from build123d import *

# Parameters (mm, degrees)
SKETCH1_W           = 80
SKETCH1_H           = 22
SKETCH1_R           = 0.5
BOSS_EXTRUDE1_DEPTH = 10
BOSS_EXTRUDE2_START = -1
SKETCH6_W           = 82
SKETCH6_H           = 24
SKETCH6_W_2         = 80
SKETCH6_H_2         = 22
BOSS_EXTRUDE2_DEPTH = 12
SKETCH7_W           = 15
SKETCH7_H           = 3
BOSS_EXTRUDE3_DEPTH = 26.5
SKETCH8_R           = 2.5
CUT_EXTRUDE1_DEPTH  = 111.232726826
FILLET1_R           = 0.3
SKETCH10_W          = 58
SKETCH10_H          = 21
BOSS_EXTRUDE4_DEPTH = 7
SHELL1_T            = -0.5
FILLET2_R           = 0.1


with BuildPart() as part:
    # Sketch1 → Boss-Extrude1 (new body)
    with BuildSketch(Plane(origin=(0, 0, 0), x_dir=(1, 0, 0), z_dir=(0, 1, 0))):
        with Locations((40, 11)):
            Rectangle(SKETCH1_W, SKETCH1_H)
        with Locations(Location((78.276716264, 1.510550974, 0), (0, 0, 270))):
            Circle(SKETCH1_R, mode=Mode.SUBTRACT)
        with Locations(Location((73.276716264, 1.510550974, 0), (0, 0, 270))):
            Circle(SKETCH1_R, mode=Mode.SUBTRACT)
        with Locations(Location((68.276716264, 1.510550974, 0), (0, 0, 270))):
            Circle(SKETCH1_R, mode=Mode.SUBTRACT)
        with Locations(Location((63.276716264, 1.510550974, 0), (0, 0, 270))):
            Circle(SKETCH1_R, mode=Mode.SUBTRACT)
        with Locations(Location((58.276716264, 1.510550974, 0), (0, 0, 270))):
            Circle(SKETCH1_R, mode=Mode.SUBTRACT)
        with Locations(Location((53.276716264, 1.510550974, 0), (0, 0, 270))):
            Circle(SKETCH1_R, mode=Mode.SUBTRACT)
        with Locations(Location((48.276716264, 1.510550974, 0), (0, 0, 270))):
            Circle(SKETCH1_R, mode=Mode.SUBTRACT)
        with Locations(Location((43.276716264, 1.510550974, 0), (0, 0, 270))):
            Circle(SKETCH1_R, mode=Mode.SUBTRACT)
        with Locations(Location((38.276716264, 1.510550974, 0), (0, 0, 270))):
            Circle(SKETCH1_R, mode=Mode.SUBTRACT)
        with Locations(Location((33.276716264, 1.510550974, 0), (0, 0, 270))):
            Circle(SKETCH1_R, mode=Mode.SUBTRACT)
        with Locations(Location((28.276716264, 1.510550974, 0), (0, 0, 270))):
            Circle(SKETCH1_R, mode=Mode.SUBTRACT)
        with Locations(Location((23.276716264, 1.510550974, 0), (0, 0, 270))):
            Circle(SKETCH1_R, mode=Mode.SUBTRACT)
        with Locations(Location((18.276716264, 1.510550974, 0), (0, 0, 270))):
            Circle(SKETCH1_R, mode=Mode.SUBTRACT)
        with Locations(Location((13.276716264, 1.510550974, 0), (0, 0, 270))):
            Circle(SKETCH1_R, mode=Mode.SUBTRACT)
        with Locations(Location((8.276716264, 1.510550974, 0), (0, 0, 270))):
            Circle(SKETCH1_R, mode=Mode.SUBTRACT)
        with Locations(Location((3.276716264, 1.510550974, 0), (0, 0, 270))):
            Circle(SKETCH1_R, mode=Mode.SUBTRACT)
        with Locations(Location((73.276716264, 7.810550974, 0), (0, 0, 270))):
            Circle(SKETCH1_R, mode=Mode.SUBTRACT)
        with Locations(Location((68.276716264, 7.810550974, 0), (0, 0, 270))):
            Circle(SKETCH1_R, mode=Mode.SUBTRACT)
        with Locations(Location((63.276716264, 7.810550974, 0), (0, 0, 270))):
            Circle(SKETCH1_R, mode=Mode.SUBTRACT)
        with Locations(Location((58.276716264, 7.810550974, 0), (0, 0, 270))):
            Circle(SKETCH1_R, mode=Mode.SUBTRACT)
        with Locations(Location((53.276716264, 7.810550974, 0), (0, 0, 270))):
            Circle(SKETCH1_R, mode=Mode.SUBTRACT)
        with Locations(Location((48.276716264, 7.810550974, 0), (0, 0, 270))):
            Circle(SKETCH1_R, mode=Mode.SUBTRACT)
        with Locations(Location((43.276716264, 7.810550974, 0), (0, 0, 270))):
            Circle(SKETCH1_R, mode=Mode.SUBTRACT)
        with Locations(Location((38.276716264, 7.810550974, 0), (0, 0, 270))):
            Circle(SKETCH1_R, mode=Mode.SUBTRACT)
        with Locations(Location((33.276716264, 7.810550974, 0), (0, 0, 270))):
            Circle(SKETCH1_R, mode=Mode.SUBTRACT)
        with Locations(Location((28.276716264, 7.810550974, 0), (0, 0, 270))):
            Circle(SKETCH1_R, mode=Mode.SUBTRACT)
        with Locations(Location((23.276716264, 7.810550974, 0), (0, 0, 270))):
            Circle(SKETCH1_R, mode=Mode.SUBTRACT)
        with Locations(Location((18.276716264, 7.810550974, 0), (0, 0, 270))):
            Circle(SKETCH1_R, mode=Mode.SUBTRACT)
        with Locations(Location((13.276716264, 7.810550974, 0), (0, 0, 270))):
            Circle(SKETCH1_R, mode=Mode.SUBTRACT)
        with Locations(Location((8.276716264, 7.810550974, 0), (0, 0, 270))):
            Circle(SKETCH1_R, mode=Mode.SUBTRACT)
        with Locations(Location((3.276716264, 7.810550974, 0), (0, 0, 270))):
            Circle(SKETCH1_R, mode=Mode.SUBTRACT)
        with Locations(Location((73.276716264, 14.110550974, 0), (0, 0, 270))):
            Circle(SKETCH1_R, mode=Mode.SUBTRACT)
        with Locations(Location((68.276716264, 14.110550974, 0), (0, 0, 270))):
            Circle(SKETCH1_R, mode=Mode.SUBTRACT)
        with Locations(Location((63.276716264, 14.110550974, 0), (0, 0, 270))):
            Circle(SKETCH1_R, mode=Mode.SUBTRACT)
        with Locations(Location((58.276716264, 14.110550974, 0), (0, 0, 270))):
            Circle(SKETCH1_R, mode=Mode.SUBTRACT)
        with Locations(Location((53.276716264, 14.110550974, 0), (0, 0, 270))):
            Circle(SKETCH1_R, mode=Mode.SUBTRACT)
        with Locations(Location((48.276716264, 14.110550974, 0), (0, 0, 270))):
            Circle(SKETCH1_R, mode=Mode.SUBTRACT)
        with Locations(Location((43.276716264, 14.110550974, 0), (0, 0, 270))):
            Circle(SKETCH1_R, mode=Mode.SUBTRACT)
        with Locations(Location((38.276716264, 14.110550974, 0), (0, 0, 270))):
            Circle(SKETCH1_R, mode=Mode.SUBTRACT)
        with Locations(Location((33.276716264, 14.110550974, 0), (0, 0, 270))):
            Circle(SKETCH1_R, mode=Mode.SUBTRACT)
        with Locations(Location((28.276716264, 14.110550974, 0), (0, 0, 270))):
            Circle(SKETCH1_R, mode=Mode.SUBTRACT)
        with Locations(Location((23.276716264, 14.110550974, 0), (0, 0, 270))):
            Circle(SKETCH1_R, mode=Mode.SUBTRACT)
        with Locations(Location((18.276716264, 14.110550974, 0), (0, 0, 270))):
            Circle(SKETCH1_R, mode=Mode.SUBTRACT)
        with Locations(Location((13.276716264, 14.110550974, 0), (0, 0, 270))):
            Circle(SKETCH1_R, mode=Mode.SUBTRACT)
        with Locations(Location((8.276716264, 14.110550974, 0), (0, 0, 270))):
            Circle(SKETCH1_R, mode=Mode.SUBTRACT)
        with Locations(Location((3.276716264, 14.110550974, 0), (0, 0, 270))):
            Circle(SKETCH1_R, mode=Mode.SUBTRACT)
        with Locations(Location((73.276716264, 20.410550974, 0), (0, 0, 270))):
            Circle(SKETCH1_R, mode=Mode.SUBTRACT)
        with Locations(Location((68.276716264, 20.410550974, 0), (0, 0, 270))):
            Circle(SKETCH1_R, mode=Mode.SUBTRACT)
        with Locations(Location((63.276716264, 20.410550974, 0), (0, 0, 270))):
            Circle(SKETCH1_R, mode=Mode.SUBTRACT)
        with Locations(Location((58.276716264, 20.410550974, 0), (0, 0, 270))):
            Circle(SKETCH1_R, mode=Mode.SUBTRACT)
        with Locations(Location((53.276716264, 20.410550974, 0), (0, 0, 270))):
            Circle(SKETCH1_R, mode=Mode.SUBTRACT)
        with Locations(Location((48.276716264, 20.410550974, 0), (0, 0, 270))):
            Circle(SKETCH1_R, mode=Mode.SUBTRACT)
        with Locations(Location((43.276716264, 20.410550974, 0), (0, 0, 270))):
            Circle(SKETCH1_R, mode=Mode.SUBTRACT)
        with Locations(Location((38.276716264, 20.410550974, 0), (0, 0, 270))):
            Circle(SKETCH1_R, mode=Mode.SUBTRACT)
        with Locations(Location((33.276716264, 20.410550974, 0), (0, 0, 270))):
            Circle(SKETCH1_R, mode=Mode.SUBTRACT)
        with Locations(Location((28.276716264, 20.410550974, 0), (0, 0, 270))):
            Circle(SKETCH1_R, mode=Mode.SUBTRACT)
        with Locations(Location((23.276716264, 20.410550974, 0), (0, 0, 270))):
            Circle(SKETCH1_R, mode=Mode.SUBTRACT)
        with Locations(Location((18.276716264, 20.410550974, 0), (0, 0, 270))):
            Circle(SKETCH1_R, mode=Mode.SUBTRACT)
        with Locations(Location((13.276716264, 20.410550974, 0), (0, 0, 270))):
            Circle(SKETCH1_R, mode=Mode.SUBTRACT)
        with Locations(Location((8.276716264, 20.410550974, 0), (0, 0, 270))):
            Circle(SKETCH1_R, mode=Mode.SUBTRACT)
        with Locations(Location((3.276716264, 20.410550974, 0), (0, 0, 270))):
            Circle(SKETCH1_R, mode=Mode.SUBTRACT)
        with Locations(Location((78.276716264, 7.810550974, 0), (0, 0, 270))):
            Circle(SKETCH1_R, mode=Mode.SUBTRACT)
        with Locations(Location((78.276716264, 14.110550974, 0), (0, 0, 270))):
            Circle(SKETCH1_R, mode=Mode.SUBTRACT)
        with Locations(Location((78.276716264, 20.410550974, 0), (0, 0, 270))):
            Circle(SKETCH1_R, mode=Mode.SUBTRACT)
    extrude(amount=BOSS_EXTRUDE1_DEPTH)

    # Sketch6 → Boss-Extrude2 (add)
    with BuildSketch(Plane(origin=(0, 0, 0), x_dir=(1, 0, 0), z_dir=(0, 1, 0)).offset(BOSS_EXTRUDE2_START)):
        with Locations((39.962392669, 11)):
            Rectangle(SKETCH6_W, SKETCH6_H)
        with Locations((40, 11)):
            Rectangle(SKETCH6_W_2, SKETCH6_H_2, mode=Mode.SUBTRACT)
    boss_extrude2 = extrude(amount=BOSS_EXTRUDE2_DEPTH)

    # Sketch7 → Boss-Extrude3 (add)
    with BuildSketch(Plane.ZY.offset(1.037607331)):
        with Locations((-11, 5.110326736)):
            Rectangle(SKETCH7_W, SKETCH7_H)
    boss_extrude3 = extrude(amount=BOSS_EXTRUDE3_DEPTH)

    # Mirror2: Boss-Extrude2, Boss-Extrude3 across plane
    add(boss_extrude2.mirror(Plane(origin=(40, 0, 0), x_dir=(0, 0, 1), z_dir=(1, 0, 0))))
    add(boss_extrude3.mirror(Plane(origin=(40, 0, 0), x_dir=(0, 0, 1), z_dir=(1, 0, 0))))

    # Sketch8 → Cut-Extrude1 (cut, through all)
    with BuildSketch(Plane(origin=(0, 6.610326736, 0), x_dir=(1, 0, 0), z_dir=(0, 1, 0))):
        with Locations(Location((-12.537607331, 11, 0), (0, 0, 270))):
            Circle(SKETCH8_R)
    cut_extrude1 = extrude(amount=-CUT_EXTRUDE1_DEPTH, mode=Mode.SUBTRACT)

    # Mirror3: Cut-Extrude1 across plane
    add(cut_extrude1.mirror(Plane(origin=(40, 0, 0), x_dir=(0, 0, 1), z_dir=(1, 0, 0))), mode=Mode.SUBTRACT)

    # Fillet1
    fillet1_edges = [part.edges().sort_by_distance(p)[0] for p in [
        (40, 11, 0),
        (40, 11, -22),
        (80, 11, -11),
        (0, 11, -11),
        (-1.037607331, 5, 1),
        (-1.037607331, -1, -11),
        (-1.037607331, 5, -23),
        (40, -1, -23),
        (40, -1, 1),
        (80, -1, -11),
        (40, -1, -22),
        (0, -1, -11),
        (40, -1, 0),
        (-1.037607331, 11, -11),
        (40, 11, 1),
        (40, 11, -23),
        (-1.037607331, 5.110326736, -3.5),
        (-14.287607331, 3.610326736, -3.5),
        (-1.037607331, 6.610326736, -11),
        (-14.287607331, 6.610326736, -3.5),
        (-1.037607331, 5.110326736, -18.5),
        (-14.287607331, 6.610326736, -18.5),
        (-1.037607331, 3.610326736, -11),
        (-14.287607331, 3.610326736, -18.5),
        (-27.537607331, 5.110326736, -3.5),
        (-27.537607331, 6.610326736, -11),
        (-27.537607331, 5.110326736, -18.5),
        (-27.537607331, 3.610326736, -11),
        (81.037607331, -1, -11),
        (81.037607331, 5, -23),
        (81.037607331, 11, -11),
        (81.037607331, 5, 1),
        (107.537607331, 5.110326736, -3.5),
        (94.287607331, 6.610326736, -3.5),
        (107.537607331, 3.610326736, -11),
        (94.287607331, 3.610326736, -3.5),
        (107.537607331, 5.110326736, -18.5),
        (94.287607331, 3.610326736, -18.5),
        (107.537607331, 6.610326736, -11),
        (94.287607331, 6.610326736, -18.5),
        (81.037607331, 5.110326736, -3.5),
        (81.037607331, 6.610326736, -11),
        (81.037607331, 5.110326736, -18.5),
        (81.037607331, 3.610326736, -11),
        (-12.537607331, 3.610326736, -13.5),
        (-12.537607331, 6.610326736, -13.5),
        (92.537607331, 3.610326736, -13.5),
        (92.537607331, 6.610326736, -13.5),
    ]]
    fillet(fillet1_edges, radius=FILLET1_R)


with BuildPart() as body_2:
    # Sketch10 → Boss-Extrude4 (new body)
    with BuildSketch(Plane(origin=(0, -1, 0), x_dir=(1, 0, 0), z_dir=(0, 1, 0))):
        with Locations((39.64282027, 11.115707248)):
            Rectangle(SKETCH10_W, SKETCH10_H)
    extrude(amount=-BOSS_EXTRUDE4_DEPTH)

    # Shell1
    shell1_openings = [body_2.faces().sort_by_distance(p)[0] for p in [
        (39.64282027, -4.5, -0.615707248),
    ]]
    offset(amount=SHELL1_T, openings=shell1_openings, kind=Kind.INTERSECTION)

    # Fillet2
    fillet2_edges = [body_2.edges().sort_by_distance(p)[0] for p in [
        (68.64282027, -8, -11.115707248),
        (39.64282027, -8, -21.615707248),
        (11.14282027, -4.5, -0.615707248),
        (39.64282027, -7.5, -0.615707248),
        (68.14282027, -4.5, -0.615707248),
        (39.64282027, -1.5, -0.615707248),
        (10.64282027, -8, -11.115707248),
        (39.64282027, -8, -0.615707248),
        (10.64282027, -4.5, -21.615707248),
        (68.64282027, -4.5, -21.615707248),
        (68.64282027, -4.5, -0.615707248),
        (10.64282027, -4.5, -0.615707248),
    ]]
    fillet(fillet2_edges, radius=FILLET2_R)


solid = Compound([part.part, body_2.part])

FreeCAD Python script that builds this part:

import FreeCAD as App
import Part
import Sketcher

V = App.Vector
Q = App.Units.Quantity


def edges_at(feature, points):
    """Names of the edges that pass closest to the given points."""
    edges = feature.Shape.Edges
    near = lambda p: min(range(len(edges)), key=lambda i: edges[i].distToShape(Part.Vertex(*p))[0])
    return sorted({f"Edge{near(p) + 1}" for p in points})


def faces_at(feature, points):
    """Names of the faces that lie closest to the given points."""
    faces = feature.Shape.Faces
    near = lambda p: min(range(len(faces)), key=lambda i: faces[i].distToShape(Part.Vertex(*p))[0])
    return sorted({f"Face{near(p) + 1}" for p in points})


def add_polygon(sketch, points):
    """Adds a closed chain of lines whose ends are joined by coincident constraints."""
    first, n = sketch.GeometryCount, len(points)
    for a, b in zip(points, points[1:] + points[:1]):
        sketch.addGeometry(Part.LineSegment(App.Vector(*a, 0), App.Vector(*b, 0)), False)
    for i in range(n):
        sketch.addConstraint(Sketcher.Constraint("Coincident", first + i, 2, first + (i + 1) % n, 1))

doc = App.newDocument("Part")
body = doc.addObject("PartDesign::Body", "Body")

sketch1 = body.newObject("Sketcher::SketchObject", "Sketch")
sketch1.AttachmentSupport = (doc.getObject("XZ_Plane"), [""])
sketch1.MapMode = "FlatFace"
add_polygon(sketch1, [(0, -22), (0, 0), (80, 0), (80, -22)])
sketch1.addGeometry(Part.Circle(V(3.3, -1.5, 0), V(0, 0, 1), 0.5), False)
sketch1.addGeometry(Part.Circle(V(8.3, -1.5, 0), V(0, 0, 1), 0.5), False)
sketch1.addGeometry(Part.Circle(V(13.3, -1.5, 0), V(0, 0, 1), 0.5), False)
sketch1.addGeometry(Part.Circle(V(18.3, -1.5, 0), V(0, 0, 1), 0.5), False)
sketch1.addGeometry(Part.Circle(V(23.3, -1.5, 0), V(0, 0, 1), 0.5), False)
sketch1.addGeometry(Part.Circle(V(28.3, -1.5, 0), V(0, 0, 1), 0.5), False)
sketch1.addGeometry(Part.Circle(V(33.3, -1.5, 0), V(0, 0, 1), 0.5), False)
sketch1.addGeometry(Part.Circle(V(38.3, -1.5, 0), V(0, 0, 1), 0.5), False)
sketch1.addGeometry(Part.Circle(V(3.3, -7.8, 0), V(0, 0, 1), 0.5), False)
sketch1.addGeometry(Part.Circle(V(8.3, -7.8, 0), V(0, 0, 1), 0.5), False)
sketch1.addGeometry(Part.Circle(V(13.3, -7.8, 0), V(0, 0, 1), 0.5), False)
sketch1.addGeometry(Part.Circle(V(18.3, -7.8, 0), V(0, 0, 1), 0.5), False)
sketch1.addGeometry(Part.Circle(V(23.3, -7.8, 0), V(0, 0, 1), 0.5), False)
sketch1.addGeometry(Part.Circle(V(28.3, -7.8, 0), V(0, 0, 1), 0.5), False)
sketch1.addGeometry(Part.Circle(V(33.3, -7.8, 0), V(0, 0, 1), 0.5), False)
sketch1.addGeometry(Part.Circle(V(38.3, -7.8, 0), V(0, 0, 1), 0.5), False)
sketch1.addGeometry(Part.Circle(V(43.3, -1.5, 0), V(0, 0, 1), 0.5), False)
sketch1.addGeometry(Part.Circle(V(48.3, -1.5, 0), V(0, 0, 1), 0.5), False)
sketch1.addGeometry(Part.Circle(V(53.3, -1.5, 0), V(0, 0, 1), 0.5), False)
sketch1.addGeometry(Part.Circle(V(58.3, -1.5, 0), V(0, 0, 1), 0.5), False)
sketch1.addGeometry(Part.Circle(V(63.3, -1.5, 0), V(0, 0, 1), 0.5), False)
sketch1.addGeometry(Part.Circle(V(68.3, -1.5, 0), V(0, 0, 1), 0.5), False)
sketch1.addGeometry(Part.Circle(V(73.3, -1.5, 0), V(0, 0, 1), 0.5), False)
sketch1.addGeometry(Part.Circle(V(78.3, -1.5, 0), V(0, 0, 1), 0.5), False)
sketch1.addGeometry(Part.Circle(V(43.3, -7.8, 0), V(0, 0, 1), 0.5), False)
sketch1.addGeometry(Part.Circle(V(48.3, -7.8, 0), V(0, 0, 1), 0.5), False)
sketch1.addGeometry(Part.Circle(V(53.3, -7.8, 0), V(0, 0, 1), 0.5), False)
sketch1.addGeometry(Part.Circle(V(58.3, -7.8, 0), V(0, 0, 1), 0.5), False)
sketch1.addGeometry(Part.Circle(V(63.3, -7.8, 0), V(0, 0, 1), 0.5), False)
sketch1.addGeometry(Part.Circle(V(68.3, -7.8, 0), V(0, 0, 1), 0.5), False)
sketch1.addGeometry(Part.Circle(V(73.3, -7.8, 0), V(0, 0, 1), 0.5), False)
sketch1.addGeometry(Part.Circle(V(78.3, -7.8, 0), V(0, 0, 1), 0.5), False)
sketch1.addGeometry(Part.Circle(V(3.3, -14.1, 0), V(0, 0, 1), 0.5), False)
sketch1.addGeometry(Part.Circle(V(8.3, -14.1, 0), V(0, 0, 1), 0.5), False)
sketch1.addGeometry(Part.Circle(V(13.3, -14.1, 0), V(0, 0, 1), 0.5), False)
sketch1.addGeometry(Part.Circle(V(18.3, -14.1, 0), V(0, 0, 1), 0.5), False)
sketch1.addGeometry(Part.Circle(V(23.3, -14.1, 0), V(0, 0, 1), 0.5), False)
sketch1.addGeometry(Part.Circle(V(28.3, -14.1, 0), V(0, 0, 1), 0.5), False)
sketch1.addGeometry(Part.Circle(V(33.3, -14.1, 0), V(0, 0, 1), 0.5), False)
sketch1.addGeometry(Part.Circle(V(38.3, -14.1, 0), V(0, 0, 1), 0.5), False)
sketch1.addGeometry(Part.Circle(V(3.3, -20.4, 0), V(0, 0, 1), 0.5), False)
sketch1.addGeometry(Part.Circle(V(8.3, -20.4, 0), V(0, 0, 1), 0.5), False)
sketch1.addGeometry(Part.Circle(V(13.3, -20.4, 0), V(0, 0, 1), 0.5), False)
sketch1.addGeometry(Part.Circle(V(18.3, -20.4, 0), V(0, 0, 1), 0.5), False)
sketch1.addGeometry(Part.Circle(V(23.3, -20.4, 0), V(0, 0, 1), 0.5), False)
sketch1.addGeometry(Part.Circle(V(28.3, -20.4, 0), V(0, 0, 1), 0.5), False)
sketch1.addGeometry(Part.Circle(V(33.3, -20.4, 0), V(0, 0, 1), 0.5), False)
sketch1.addGeometry(Part.Circle(V(38.3, -20.4, 0), V(0, 0, 1), 0.5), False)
sketch1.addGeometry(Part.Circle(V(43.3, -14.1, 0), V(0, 0, 1), 0.5), False)
sketch1.addGeometry(Part.Circle(V(48.3, -14.1, 0), V(0, 0, 1), 0.5), False)
sketch1.addGeometry(Part.Circle(V(53.3, -14.1, 0), V(0, 0, 1), 0.5), False)
sketch1.addGeometry(Part.Circle(V(58.3, -14.1, 0), V(0, 0, 1), 0.5), False)
sketch1.addGeometry(Part.Circle(V(63.3, -14.1, 0), V(0, 0, 1), 0.5), False)
sketch1.addGeometry(Part.Circle(V(68.3, -14.1, 0), V(0, 0, 1), 0.5), False)
sketch1.addGeometry(Part.Circle(V(73.3, -14.1, 0), V(0, 0, 1), 0.5), False)
sketch1.addGeometry(Part.Circle(V(78.3, -14.1, 0), V(0, 0, 1), 0.5), False)
sketch1.addGeometry(Part.Circle(V(43.3, -20.4, 0), V(0, 0, 1), 0.5), False)
sketch1.addGeometry(Part.Circle(V(48.3, -20.4, 0), V(0, 0, 1), 0.5), False)
sketch1.addGeometry(Part.Circle(V(53.3, -20.4, 0), V(0, 0, 1), 0.5), False)
sketch1.addGeometry(Part.Circle(V(58.3, -20.4, 0), V(0, 0, 1), 0.5), False)
sketch1.addGeometry(Part.Circle(V(63.3, -20.4, 0), V(0, 0, 1), 0.5), False)
sketch1.addGeometry(Part.Circle(V(68.3, -20.4, 0), V(0, 0, 1), 0.5), False)
sketch1.addGeometry(Part.Circle(V(73.3, -20.4, 0), V(0, 0, 1), 0.5), False)
sketch1.addGeometry(Part.Circle(V(78.3, -20.4, 0), V(0, 0, 1), 0.5), False)
sketch1.addConstraint([
    Sketcher.Constraint("Vertical", 0),
    Sketcher.Constraint("Horizontal", 1),
    Sketcher.Constraint("Vertical", 2),
    Sketcher.Constraint("Horizontal", 3),
    Sketcher.Constraint("Coincident", 0, 2, -1, 1),
    Sketcher.Constraint("Equal", 4, 5),
    Sketcher.Constraint("Equal", 5, 6),
    Sketcher.Constraint("Equal", 6, 7),
    Sketcher.Constraint("Equal", 7, 8),
    Sketcher.Constraint("Equal", 8, 9),
    Sketcher.Constraint("Equal", 9, 10),
    Sketcher.Constraint("Equal", 10, 11),
    Sketcher.Constraint("Equal", 11, 12),
    Sketcher.Constraint("Equal", 12, 13),
    Sketcher.Constraint("Equal", 13, 14),
    Sketcher.Constraint("Equal", 14, 15),
    Sketcher.Constraint("Equal", 15, 16),
    Sketcher.Constraint("Equal", 16, 17),
    Sketcher.Constraint("Equal", 17, 18),
    Sketcher.Constraint("Equal", 18, 19),
    Sketcher.Constraint("Equal", 19, 20),
    Sketcher.Constraint("Equal", 20, 21),
    Sketcher.Constraint("Equal", 21, 22),
    Sketcher.Constraint("Equal", 22, 23),
    Sketcher.Constraint("Equal", 23, 24),
    Sketcher.Constraint("Equal", 24, 25),
    Sketcher.Constraint("Equal", 25, 26),
    Sketcher.Constraint("Equal", 26, 27),
    Sketcher.Constraint("Equal", 27, 28),
    Sketcher.Constraint("Equal", 28, 29),
    Sketcher.Constraint("Equal", 29, 30),
    Sketcher.Constraint("Equal", 30, 31),
    Sketcher.Constraint("Equal", 31, 32),
    Sketcher.Constraint("Equal", 32, 33),
    Sketcher.Constraint("Equal", 33, 34),
    Sketcher.Constraint("Equal", 34, 35),
    Sketcher.Constraint("Equal", 35, 36),
    Sketcher.Constraint("Equal", 36, 37),
    Sketcher.Constraint("Equal", 37, 38),
    Sketcher.Constraint("Equal", 38, 39),
    Sketcher.Constraint("Equal", 39, 40),
    Sketcher.Constraint("Equal", 40, 41),
    Sketcher.Constraint("Equal", 41, 42),
    Sketcher.Constraint("Equal", 42, 43),
    Sketcher.Constraint("Equal", 43, 44),
    Sketcher.Constraint("Equal", 44, 45),
    Sketcher.Constraint("Equal", 45, 46),
    Sketcher.Constraint("Equal", 46, 47),
    Sketcher.Constraint("Equal", 47, 48),
    Sketcher.Constraint("Equal", 48, 49),
    Sketcher.Constraint("Equal", 49, 50),
    Sketcher.Constraint("Equal", 50, 51),
    Sketcher.Constraint("Equal", 51, 52),
    Sketcher.Constraint("Equal", 52, 53),
    Sketcher.Constraint("Equal", 53, 54),
    Sketcher.Constraint("Equal", 54, 55),
    Sketcher.Constraint("Equal", 55, 56),
    Sketcher.Constraint("Equal", 56, 57),
    Sketcher.Constraint("Equal", 57, 58),
    Sketcher.Constraint("Equal", 58, 59),
    Sketcher.Constraint("Equal", 59, 60),
    Sketcher.Constraint("Equal", 60, 61),
    Sketcher.Constraint("Equal", 61, 62),
    Sketcher.Constraint("Equal", 62, 63),
    Sketcher.Constraint("Equal", 63, 64),
    Sketcher.Constraint("Equal", 64, 65),
    Sketcher.Constraint("Equal", 65, 66),
    Sketcher.Constraint("Equal", 66, 67),
    Sketcher.Constraint("Horizontal", 4, 3, 5, 3),
    Sketcher.Constraint("Horizontal", 5, 3, 6, 3),
    Sketcher.Constraint("Horizontal", 6, 3, 7, 3),
    Sketcher.Constraint("Horizontal", 7, 3, 8, 3),
    Sketcher.Constraint("Horizontal", 8, 3, 9, 3),
    Sketcher.Constraint("Horizontal", 9, 3, 10, 3),
    Sketcher.Constraint("Horizontal", 10, 3, 11, 3),
    Sketcher.Constraint("Horizontal", 12, 3, 13, 3),
    Sketcher.Constraint("Horizontal", 13, 3, 14, 3),
    Sketcher.Constraint("Horizontal", 14, 3, 15, 3),
    Sketcher.Constraint("Horizontal", 15, 3, 16, 3),
    Sketcher.Constraint("Horizontal", 16, 3, 17, 3),
    Sketcher.Constraint("Horizontal", 17, 3, 18, 3),
    Sketcher.Constraint("Horizontal", 18, 3, 19, 3),
    Sketcher.Constraint("Horizontal", 11, 3, 20, 3),
    Sketcher.Constraint("Horizontal", 20, 3, 21, 3),
    Sketcher.Constraint("Horizontal", 21, 3, 22, 3),
    Sketcher.Constraint("Horizontal", 22, 3, 23, 3),
    Sketcher.Constraint("Horizontal", 23, 3, 24, 3),
    Sketcher.Constraint("Horizontal", 24, 3, 25, 3),
    Sketcher.Constraint("Horizontal", 25, 3, 26, 3),
    Sketcher.Constraint("Horizontal", 26, 3, 27, 3),
    Sketcher.Constraint("Horizontal", 19, 3, 28, 3),
    Sketcher.Constraint("Horizontal", 28, 3, 29, 3),
    Sketcher.Constraint("Horizontal", 29, 3, 30, 3),
    Sketcher.Constraint("Horizontal", 30, 3, 31, 3),
    Sketcher.Constraint("Horizontal", 31, 3, 32, 3),
    Sketcher.Constraint("Horizontal", 32, 3, 33, 3),
    Sketcher.Constraint("Horizontal", 33, 3, 34, 3),
    Sketcher.Constraint("Horizontal", 34, 3, 35, 3),
    Sketcher.Constraint("Horizontal", 36, 3, 37, 3),
    Sketcher.Constraint("Horizontal", 37, 3, 38, 3),
    Sketcher.Constraint("Horizontal", 38, 3, 39, 3),
    Sketcher.Constraint("Horizontal", 39, 3, 40, 3),
    Sketcher.Constraint("Horizontal", 40, 3, 41, 3),
    Sketcher.Constraint("Horizontal", 41, 3, 42, 3),
    Sketcher.Constraint("Horizontal", 42, 3, 43, 3),
    Sketcher.Constraint("Horizontal", 44, 3, 45, 3),
    Sketcher.Constraint("Horizontal", 45, 3, 46, 3),
    Sketcher.Constraint("Horizontal", 46, 3, 47, 3),
    Sketcher.Constraint("Horizontal", 47, 3, 48, 3),
    Sketcher.Constraint("Horizontal", 48, 3, 49, 3),
    Sketcher.Constraint("Horizontal", 49, 3, 50, 3),
    Sketcher.Constraint("Horizontal", 50, 3, 51, 3),
    Sketcher.Constraint("Horizontal", 43, 3, 52, 3),
    Sketcher.Constraint("Horizontal", 52, 3, 53, 3),
    Sketcher.Constraint("Horizontal", 53, 3, 54, 3),
    Sketcher.Constraint("Horizontal", 54, 3, 55, 3),
    Sketcher.Constraint("Horizontal", 55, 3, 56, 3),
    Sketcher.Constraint("Horizontal", 56, 3, 57, 3),
    Sketcher.Constraint("Horizontal", 57, 3, 58, 3),
    Sketcher.Constraint("Horizontal", 58, 3, 59, 3),
    Sketcher.Constraint("Horizontal", 51, 3, 60, 3),
    Sketcher.Constraint("Horizontal", 60, 3, 61, 3),
    Sketcher.Constraint("Horizontal", 61, 3, 62, 3),
    Sketcher.Constraint("Horizontal", 62, 3, 63, 3),
    Sketcher.Constraint("Horizontal", 63, 3, 64, 3),
    Sketcher.Constraint("Horizontal", 64, 3, 65, 3),
    Sketcher.Constraint("Horizontal", 65, 3, 66, 3),
    Sketcher.Constraint("Horizontal", 66, 3, 67, 3),
    Sketcher.Constraint("Vertical", 4, 3, 12, 3),
    Sketcher.Constraint("Vertical", 5, 3, 13, 3),
    Sketcher.Constraint("Vertical", 6, 3, 14, 3),
    Sketcher.Constraint("Vertical", 7, 3, 15, 3),
    Sketcher.Constraint("Vertical", 8, 3, 16, 3),
    Sketcher.Constraint("Vertical", 9, 3, 17, 3),
    Sketcher.Constraint("Vertical", 10, 3, 18, 3),
    Sketcher.Constraint("Vertical", 11, 3, 19, 3),
    Sketcher.Constraint("Vertical", 20, 3, 28, 3),
    Sketcher.Constraint("Vertical", 21, 3, 29, 3),
    Sketcher.Constraint("Vertical", 22, 3, 30, 3),
    Sketcher.Constraint("Vertical", 23, 3, 31, 3),
    Sketcher.Constraint("Vertical", 24, 3, 32, 3),
    Sketcher.Constraint("Vertical", 25, 3, 33, 3),
    Sketcher.Constraint("Vertical", 26, 3, 34, 3),
    Sketcher.Constraint("Vertical", 27, 3, 35, 3),
    Sketcher.Constraint("Vertical", 12, 3, 36, 3),
    Sketcher.Constraint("Vertical", 13, 3, 37, 3),
    Sketcher.Constraint("Vertical", 14, 3, 38, 3),
    Sketcher.Constraint("Vertical", 15, 3, 39, 3),
    Sketcher.Constraint("Vertical", 16, 3, 40, 3),
    Sketcher.Constraint("Vertical", 17, 3, 41, 3),
    Sketcher.Constraint("Vertical", 18, 3, 42, 3),
    Sketcher.Constraint("Vertical", 19, 3, 43, 3),
    Sketcher.Constraint("Vertical", 36, 3, 44, 3),
    Sketcher.Constraint("Vertical", 37, 3, 45, 3),
    Sketcher.Constraint("Vertical", 38, 3, 46, 3),
    Sketcher.Constraint("Vertical", 39, 3, 47, 3),
    Sketcher.Constraint("Vertical", 40, 3, 48, 3),
    Sketcher.Constraint("Vertical", 41, 3, 49, 3),
    Sketcher.Constraint("Vertical", 42, 3, 50, 3),
    Sketcher.Constraint("Vertical", 43, 3, 51, 3),
    Sketcher.Constraint("Vertical", 28, 3, 52, 3),
    Sketcher.Constraint("Vertical", 29, 3, 53, 3),
    Sketcher.Constraint("Vertical", 30, 3, 54, 3),
    Sketcher.Constraint("Vertical", 31, 3, 55, 3),
    Sketcher.Constraint("Vertical", 32, 3, 56, 3),
    Sketcher.Constraint("Vertical", 33, 3, 57, 3),
    Sketcher.Constraint("Vertical", 34, 3, 58, 3),
    Sketcher.Constraint("Vertical", 35, 3, 59, 3),
    Sketcher.Constraint("Vertical", 52, 3, 60, 3),
    Sketcher.Constraint("Vertical", 53, 3, 61, 3),
    Sketcher.Constraint("Vertical", 54, 3, 62, 3),
    Sketcher.Constraint("Vertical", 55, 3, 63, 3),
    Sketcher.Constraint("Vertical", 56, 3, 64, 3),
    Sketcher.Constraint("Vertical", 57, 3, 65, 3),
    Sketcher.Constraint("Vertical", 58, 3, 66, 3),
    Sketcher.Constraint("Vertical", 59, 3, 67, 3),
    Sketcher.Constraint("Diameter", 4, Q("1 mm")),
    Sketcher.Constraint("DistanceX", 1, 1, 1, 2, Q("80 mm")),
    Sketcher.Constraint("DistanceY", 0, 1, 0, 2, Q("22 mm")),
    Sketcher.Constraint("DistanceY", 4, 3, -1, 1, Q("1.510551 mm")),
    Sketcher.Constraint("DistanceY", 12, 3, -1, 1, Q("7.810551 mm")),
    Sketcher.Constraint("DistanceY", 36, 3, -1, 1, Q("14.110551 mm")),
    Sketcher.Constraint("DistanceY", 44, 3, -1, 1, Q("20.410551 mm")),
    Sketcher.Constraint("DistanceX", -1, 1, 4, 3, Q("3.276716 mm")),
    Sketcher.Constraint("DistanceX", -1, 1, 5, 3, Q("8.276716 mm")),
    Sketcher.Constraint("DistanceX", -1, 1, 6, 3, Q("13.276716 mm")),
    Sketcher.Constraint("DistanceX", -1, 1, 7, 3, Q("18.276716 mm")),
    Sketcher.Constraint("DistanceX", -1, 1, 8, 3, Q("23.276716 mm")),
    Sketcher.Constraint("DistanceX", -1, 1, 9, 3, Q("28.276716 mm")),
    Sketcher.Constraint("DistanceX", -1, 1, 10, 3, Q("33.276716 mm")),
    Sketcher.Constraint("DistanceX", -1, 1, 11, 3, Q("38.276716 mm")),
    Sketcher.Constraint("DistanceX", -1, 1, 20, 3, Q("43.276716 mm")),
    Sketcher.Constraint("DistanceX", -1, 1, 21, 3, Q("48.276716 mm")),
    Sketcher.Constraint("DistanceX", -1, 1, 22, 3, Q("53.276716 mm")),
    Sketcher.Constraint("DistanceX", -1, 1, 23, 3, Q("58.276716 mm")),
    Sketcher.Constraint("DistanceX", -1, 1, 24, 3, Q("63.276716 mm")),
    Sketcher.Constraint("DistanceX", -1, 1, 25, 3, Q("68.276716 mm")),
    Sketcher.Constraint("DistanceX", -1, 1, 26, 3, Q("73.276716 mm")),
    Sketcher.Constraint("DistanceX", -1, 1, 27, 3, Q("78.276716 mm")),
])
pad1 = body.newObject("PartDesign::Pad", "Pad")
pad1.Profile = sketch1
pad1.Length = 10
pad1.Reversed = True

sketch2 = body.newObject("Sketcher::SketchObject", "Sketch001")
sketch2.AttachmentSupport = (doc.getObject("XZ_Plane"), [""])
sketch2.MapMode = "FlatFace"
sketch2.AttachmentOffset = App.Placement(V(0, 0, 1), App.Rotation())
add_polygon(sketch2, [(-1, -23), (-1, 1), (81, 1), (81, -23)])
add_polygon(sketch2, [(80, 0), (0, 0), (0, -22), (80, -22)])
sketch2.addConstraint([
    Sketcher.Constraint("Vertical", 0),
    Sketcher.Constraint("Horizontal", 1),
    Sketcher.Constraint("Vertical", 2),
    Sketcher.Constraint("Horizontal", 3),
    Sketcher.Constraint("Horizontal", 4),
    Sketcher.Constraint("Vertical", 5),
    Sketcher.Constraint("Horizontal", 6),
    Sketcher.Constraint("Vertical", 7),
    Sketcher.Constraint("Coincident", 4, 2, -1, 1),
    Sketcher.Constraint("DistanceX", 1, 1, 1, 2, Q("82 mm")),
    Sketcher.Constraint("DistanceX", 4, 2, 4, 1, Q("80 mm")),
    Sketcher.Constraint("DistanceY", 0, 1, 0, 2, Q("24 mm")),
    Sketcher.Constraint("DistanceY", 5, 2, 5, 1, Q("22 mm")),
    Sketcher.Constraint("DistanceY", -1, 1, 0, 2, Q("1 mm")),
    Sketcher.Constraint("DistanceX", 0, 2, -1, 1, Q("1.037607 mm")),
])
pad2 = body.newObject("PartDesign::Pad", "Pad001")
pad2.Profile = sketch2
pad2.Length = 12
pad2.Reversed = True

sketch3 = body.newObject("Sketcher::SketchObject", "Sketch002")
sketch3.AttachmentSupport = (doc.getObject("YZ_Plane"), [""])
sketch3.MapMode = "FlatFace"
sketch3.AttachmentOffset = App.Placement(V(0, 0, -1.037607), App.Rotation())
add_polygon(sketch3, [(6.6, -18.5), (3.6, -18.5), (3.6, -3.5), (6.6, -3.5)])
sketch3.addConstraint([
    Sketcher.Constraint("Horizontal", 0),
    Sketcher.Constraint("Vertical", 1),
    Sketcher.Constraint("Horizontal", 2),
    Sketcher.Constraint("Vertical", 3),
    Sketcher.Constraint("DistanceX", 0, 2, 0, 1, Q("3 mm")),
    Sketcher.Constraint("DistanceY", 1, 1, 1, 2, Q("15 mm")),
    Sketcher.Constraint("DistanceY", 0, 2, -1, 1, Q("18.5 mm")),
    Sketcher.Constraint("DistanceX", -1, 1, 0, 2, Q("3.610327 mm")),
])
pad3 = body.newObject("PartDesign::Pad", "Pad002")
pad3.Profile = sketch3
pad3.Length = 26.5
pad3.Reversed = True
doc.recompute()

datumplane = body.newObject("PartDesign::Plane", "DatumPlane")
datumplane.AttachmentSupport = (doc.getObject("YZ_Plane"), [""])
datumplane.MapMode = "FlatFace"
datumplane.AttachmentOffset = App.Placement(V(0, 0, 40), App.Rotation())
mirrored = body.newObject("PartDesign::Mirrored", "Mirrored")
mirrored.Originals = [pad2, pad3]
mirrored.MirrorPlane = (datumplane, [""])
body.Tip = mirrored

sketch4 = body.newObject("Sketcher::SketchObject", "Sketch003")
sketch4.AttachmentSupport = (doc.getObject("XZ_Plane"), [""])
sketch4.MapMode = "FlatFace"
sketch4.AttachmentOffset = App.Placement(V(0, 0, -6.610327), App.Rotation())
sketch4.addGeometry(Part.Circle(V(-12.5, -11, 0), V(0, 0, 1), 2.5), False)
sketch4.addConstraint([
    Sketcher.Constraint("Diameter", 0, Q("5 mm")),
    Sketcher.Constraint("DistanceY", 0, 3, -1, 1, Q("11 mm")),
    Sketcher.Constraint("DistanceX", 0, 3, -1, 1, Q("12.537607 mm")),
])
pocket1 = body.newObject("PartDesign::Pocket", "Pocket")
pocket1.Profile = sketch4
pocket1.Type = "ThroughAll"
pocket1.Reversed = True
doc.recompute()

datumplane2 = body.newObject("PartDesign::Plane", "DatumPlane001")
datumplane2.AttachmentSupport = (doc.getObject("YZ_Plane"), [""])
datumplane2.MapMode = "FlatFace"
datumplane2.AttachmentOffset = App.Placement(V(0, 0, 40), App.Rotation())
mirrored2 = body.newObject("PartDesign::Mirrored", "Mirrored001")
mirrored2.Originals = [pocket1]
mirrored2.MirrorPlane = (datumplane2, [""])
body.Tip = mirrored2
doc.recompute()

fillet = body.newObject("PartDesign::Fillet", "Fillet")
fillet.Base = (mirrored2, edges_at(mirrored2, [
    (40, 11, 0),
    (40, 11, -22),
    (80, 11, -11),
    (0, 11, -11),
    (-1.038, 5, 1),
    (-1.038, -1, -11),
    (-1.038, 5, -23),
    (40, -1, -23),
    (40, -1, 1),
    (80, -1, -11),
    (40, -1, -22),
    (0, -1, -11),
    (40, -1, 0),
    (-1.038, 11, -11),
    (40, 11, 1),
    (40, 11, -23),
    (-1.038, 5.11, -3.5),
    (-14.288, 3.61, -3.5),
    (-1.038, 6.61, -11),
    (-14.288, 6.61, -3.5),
    (-1.038, 5.11, -18.5),
    (-14.288, 6.61, -18.5),
    (-1.038, 3.61, -11),
    (-14.288, 3.61, -18.5),
    (-27.538, 5.11, -3.5),
    (-27.538, 6.61, -11),
    (-27.538, 5.11, -18.5),
    (-27.538, 3.61, -11),
    (81.038, -1, -11),
    (81.038, 5, -23),
    (81.038, 11, -11),
    (81.038, 5, 1),
    (107.538, 5.11, -3.5),
    (94.288, 6.61, -3.5),
    (107.538, 3.61, -11),
    (94.288, 3.61, -3.5),
    (107.538, 5.11, -18.5),
    (94.288, 3.61, -18.5),
    (107.538, 6.61, -11),
    (94.288, 6.61, -18.5),
    (81.038, 5.11, -3.5),
    (81.038, 6.61, -11),
    (81.038, 5.11, -18.5),
    (81.038, 3.61, -11),
    (-12.538, 3.61, -13.5),
    (-12.538, 6.61, -13.5),
    (92.538, 3.61, -13.5),
    (92.538, 6.61, -13.5),
]))
fillet.Radius = 0.3
body2 = doc.addObject("PartDesign::Body", "Body001")

sketch5 = body2.newObject("Sketcher::SketchObject", "Sketch004")
sketch5.AttachmentSupport = (doc.getObject("XZ_Plane001"), [""])
sketch5.MapMode = "FlatFace"
sketch5.AttachmentOffset = App.Placement(V(0, 0, 1), App.Rotation())
add_polygon(sketch5, [(11, -22), (11, -1), (69, -1), (69, -22)])
sketch5.addConstraint([
    Sketcher.Constraint("Vertical", 0),
    Sketcher.Constraint("Horizontal", 1),
    Sketcher.Constraint("Vertical", 2),
    Sketcher.Constraint("Horizontal", 3),
    Sketcher.Constraint("DistanceX", 1, 1, 1, 2, Q("58 mm")),
    Sketcher.Constraint("DistanceY", 0, 1, 0, 2, Q("21 mm")),
    Sketcher.Constraint("DistanceX", -1, 1, 0, 2, Q("10.64282 mm")),
    Sketcher.Constraint("DistanceY", 0, 2, -1, 1, Q("0.615707 mm")),
])
pad4 = body2.newObject("PartDesign::Pad", "Pad003")
pad4.Profile = sketch5
pad4.Length = 7
doc.recompute()

thickness = body2.newObject("PartDesign::Thickness", "Thickness")
thickness.Base = (pad4, faces_at(pad4, [(39.643, -4.5, -0.616)]))
thickness.Value = 0.5
thickness.Reversed = True
thickness.Join = "Intersection"
doc.recompute()

fillet2 = body2.newObject("PartDesign::Fillet", "Fillet001")
fillet2.Base = (thickness, edges_at(thickness, [
    (68.643, -8, -11.116),
    (39.643, -8, -21.616),
    (11.143, -4.5, -0.616),
    (39.643, -7.5, -0.616),
    (68.143, -4.5, -0.616),
    (39.643, -1.5, -0.616),
    (10.643, -8, -11.116),
    (39.643, -8, -0.616),
    (10.643, -4.5, -21.616),
    (68.643, -4.5, -21.616),
    (68.643, -4.5, -0.616),
    (10.643, -4.5, -0.616),
]))
fillet2.Radius = 0.1

doc.recompute()
